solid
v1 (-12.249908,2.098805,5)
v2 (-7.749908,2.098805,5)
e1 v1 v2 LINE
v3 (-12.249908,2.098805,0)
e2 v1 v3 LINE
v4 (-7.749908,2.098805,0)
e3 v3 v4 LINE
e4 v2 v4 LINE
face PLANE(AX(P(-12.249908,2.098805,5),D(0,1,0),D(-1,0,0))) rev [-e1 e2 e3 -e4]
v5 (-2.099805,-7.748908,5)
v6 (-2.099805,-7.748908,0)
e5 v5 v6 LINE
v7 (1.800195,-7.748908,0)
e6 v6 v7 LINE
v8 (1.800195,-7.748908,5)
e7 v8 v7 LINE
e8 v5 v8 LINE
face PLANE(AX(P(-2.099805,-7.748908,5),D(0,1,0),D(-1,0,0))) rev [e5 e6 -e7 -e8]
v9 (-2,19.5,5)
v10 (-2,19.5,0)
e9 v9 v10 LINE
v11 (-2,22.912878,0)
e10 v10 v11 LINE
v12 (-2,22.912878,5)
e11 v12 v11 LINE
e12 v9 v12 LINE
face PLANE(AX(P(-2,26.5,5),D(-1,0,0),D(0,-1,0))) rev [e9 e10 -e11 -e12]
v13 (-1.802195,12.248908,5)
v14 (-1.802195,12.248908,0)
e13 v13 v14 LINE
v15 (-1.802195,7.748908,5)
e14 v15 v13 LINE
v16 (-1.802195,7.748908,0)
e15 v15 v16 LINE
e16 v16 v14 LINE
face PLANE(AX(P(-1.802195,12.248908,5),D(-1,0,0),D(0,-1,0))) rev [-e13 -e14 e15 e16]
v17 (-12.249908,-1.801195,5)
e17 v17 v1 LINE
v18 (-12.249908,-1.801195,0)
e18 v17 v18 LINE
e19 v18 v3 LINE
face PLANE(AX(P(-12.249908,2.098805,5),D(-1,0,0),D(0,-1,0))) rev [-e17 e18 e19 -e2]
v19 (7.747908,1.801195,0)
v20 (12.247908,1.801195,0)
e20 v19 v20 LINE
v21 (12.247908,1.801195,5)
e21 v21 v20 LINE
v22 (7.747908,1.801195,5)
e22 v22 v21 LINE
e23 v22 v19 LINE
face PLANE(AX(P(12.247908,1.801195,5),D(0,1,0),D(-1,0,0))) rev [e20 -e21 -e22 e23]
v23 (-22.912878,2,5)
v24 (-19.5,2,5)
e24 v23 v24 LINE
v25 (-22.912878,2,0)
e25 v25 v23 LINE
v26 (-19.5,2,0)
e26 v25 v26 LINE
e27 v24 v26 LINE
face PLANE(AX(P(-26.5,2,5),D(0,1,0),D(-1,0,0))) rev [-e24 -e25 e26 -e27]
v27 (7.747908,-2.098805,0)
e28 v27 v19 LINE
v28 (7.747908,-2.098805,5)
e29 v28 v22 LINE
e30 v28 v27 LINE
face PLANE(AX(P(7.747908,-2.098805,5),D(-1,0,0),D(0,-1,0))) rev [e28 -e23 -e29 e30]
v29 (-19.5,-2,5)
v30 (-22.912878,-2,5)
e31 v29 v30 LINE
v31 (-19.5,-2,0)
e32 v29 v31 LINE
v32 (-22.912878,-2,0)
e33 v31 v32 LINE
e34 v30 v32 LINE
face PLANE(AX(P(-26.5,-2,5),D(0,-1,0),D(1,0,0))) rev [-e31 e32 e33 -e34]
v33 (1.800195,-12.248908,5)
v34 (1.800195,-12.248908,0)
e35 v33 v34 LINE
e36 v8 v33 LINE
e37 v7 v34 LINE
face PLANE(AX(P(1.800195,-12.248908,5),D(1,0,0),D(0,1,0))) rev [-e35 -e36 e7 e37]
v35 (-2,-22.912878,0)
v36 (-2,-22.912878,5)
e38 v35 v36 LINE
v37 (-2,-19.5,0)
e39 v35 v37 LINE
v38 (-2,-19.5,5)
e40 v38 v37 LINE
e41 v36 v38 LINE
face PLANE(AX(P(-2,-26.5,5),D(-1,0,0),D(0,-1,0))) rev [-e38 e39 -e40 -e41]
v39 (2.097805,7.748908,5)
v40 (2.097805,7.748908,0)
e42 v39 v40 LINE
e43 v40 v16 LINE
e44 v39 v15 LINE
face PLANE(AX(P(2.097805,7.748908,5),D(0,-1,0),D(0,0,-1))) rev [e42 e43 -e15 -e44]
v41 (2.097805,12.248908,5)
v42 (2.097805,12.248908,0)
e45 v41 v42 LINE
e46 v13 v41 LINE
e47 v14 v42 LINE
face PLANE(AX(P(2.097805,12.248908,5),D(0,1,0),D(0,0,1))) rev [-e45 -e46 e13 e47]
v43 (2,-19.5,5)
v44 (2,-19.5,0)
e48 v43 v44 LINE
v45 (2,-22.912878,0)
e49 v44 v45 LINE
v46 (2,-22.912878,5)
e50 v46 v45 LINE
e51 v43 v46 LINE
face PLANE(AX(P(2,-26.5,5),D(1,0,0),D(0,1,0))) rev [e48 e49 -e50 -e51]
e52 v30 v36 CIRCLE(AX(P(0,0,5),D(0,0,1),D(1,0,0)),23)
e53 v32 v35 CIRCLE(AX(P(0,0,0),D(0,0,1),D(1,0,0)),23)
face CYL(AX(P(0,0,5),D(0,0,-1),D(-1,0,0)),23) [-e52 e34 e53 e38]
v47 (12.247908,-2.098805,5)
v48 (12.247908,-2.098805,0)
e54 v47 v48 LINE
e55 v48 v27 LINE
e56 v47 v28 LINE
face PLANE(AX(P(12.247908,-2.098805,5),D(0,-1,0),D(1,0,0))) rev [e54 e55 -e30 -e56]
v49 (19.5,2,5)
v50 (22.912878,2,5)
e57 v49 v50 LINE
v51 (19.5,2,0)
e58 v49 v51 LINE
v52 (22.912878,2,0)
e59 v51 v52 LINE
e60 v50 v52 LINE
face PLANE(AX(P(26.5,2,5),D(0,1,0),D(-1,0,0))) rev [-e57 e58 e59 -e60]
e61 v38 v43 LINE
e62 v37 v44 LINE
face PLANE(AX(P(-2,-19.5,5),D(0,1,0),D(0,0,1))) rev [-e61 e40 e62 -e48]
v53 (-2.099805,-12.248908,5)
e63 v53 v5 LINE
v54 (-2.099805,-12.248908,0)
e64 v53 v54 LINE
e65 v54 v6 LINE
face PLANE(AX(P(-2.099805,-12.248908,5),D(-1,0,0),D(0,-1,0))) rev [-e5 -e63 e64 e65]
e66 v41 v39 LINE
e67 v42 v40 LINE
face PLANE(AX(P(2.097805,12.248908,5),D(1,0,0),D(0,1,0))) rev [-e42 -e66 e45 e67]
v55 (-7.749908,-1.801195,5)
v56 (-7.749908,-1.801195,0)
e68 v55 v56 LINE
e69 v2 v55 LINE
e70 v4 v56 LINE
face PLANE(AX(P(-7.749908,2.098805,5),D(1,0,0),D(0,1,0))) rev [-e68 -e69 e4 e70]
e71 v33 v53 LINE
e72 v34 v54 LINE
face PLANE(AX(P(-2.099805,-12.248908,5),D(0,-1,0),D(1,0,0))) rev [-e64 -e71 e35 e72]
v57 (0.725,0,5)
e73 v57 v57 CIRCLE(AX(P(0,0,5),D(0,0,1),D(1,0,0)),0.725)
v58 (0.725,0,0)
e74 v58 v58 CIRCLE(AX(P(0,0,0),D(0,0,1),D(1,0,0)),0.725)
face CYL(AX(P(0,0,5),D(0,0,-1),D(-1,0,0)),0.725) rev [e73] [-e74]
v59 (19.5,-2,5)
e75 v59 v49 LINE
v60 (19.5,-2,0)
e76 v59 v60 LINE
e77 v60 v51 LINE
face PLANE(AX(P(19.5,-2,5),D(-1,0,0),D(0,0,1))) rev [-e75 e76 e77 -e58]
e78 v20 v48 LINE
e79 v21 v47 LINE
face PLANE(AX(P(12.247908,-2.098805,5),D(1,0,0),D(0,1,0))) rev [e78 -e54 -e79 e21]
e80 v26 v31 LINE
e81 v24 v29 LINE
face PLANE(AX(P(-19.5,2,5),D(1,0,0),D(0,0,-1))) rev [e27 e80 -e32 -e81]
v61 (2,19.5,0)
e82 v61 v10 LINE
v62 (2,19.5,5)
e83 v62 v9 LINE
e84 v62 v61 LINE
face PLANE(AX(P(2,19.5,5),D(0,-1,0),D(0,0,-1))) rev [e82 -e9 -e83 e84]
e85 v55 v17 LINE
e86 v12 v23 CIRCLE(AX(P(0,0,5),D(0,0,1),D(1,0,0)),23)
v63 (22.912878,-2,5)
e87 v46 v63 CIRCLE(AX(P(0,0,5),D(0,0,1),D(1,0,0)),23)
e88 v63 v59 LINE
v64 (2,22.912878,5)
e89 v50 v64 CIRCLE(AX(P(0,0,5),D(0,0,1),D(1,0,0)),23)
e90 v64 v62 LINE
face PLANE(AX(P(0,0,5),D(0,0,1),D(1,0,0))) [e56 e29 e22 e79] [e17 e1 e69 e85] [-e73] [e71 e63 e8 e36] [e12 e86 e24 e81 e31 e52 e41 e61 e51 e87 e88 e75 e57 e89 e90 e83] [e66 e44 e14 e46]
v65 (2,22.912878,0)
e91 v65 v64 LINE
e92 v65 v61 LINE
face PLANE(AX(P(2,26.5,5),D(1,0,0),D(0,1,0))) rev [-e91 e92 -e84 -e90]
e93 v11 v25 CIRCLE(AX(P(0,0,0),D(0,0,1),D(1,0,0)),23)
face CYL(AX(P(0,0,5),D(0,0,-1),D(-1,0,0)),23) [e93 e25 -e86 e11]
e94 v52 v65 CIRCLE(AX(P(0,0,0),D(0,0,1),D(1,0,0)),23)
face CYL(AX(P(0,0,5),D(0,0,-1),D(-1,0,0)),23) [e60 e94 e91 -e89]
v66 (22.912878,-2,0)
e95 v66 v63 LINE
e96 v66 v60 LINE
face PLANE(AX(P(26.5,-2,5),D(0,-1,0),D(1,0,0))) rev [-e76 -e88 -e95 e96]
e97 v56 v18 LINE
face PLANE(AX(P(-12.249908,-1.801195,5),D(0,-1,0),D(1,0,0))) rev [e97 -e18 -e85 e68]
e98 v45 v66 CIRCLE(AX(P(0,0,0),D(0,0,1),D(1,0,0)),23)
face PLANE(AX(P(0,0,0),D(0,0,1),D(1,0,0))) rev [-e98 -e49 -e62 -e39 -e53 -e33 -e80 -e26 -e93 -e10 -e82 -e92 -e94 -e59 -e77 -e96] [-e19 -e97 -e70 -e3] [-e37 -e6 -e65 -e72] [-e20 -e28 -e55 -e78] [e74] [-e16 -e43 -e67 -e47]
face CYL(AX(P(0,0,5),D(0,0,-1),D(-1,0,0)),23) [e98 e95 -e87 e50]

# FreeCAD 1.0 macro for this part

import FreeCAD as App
import Part
import Sketcher


def add_polygon(sketch, points):
    """Adds a closed chain of lines whose ends are joined by coincident constraints."""
    first, n = sketch.GeometryCount, len(points)
    for a, b in zip(points, points[1:] + points[:1]):
        sketch.addGeometry(Part.LineSegment(App.Vector(*a, 0), App.Vector(*b, 0)), False)
    for i in range(n):
        sketch.addConstraint(Sketcher.Constraint("Coincident", first + i, 2, first + (i + 1) % n, 1))

doc = App.newDocument("Part")
body = doc.addObject("PartDesign::Body", "Body")

# Sketch on XY plane
sketch1 = body.newObject("Sketcher::SketchObject", "Sketch")
sketch1.AttachmentSupport = (doc.getObject("XY_Plane"), [""])
sketch1.MapMode = "FlatFace"
sketch1.addGeometry(Part.Circle(App.Vector(0, 0, 0), App.Vector(0, 0, 1), 23), False)
sketch1.addGeometry(Part.Circle(App.Vector(0, 0, 0), App.Vector(0, 0, 1), 0.7), False)
sketch1.addConstraint(Sketcher.Constraint("Coincident", 0, 3, -1, 1))
sketch1.addConstraint(Sketcher.Constraint("Coincident", 1, 3, -1, 1))
sketch1.addConstraint(Sketcher.Constraint("Diameter", 0, 46.0))
sketch1.addConstraint(Sketcher.Constraint("Diameter", 1, 1.45))
pad1 = body.newObject("PartDesign::Pad", "Pad")
pad1.Profile = sketch1
pad1.Length = 5

# Sketch on XY plane
sketch2 = body.newObject("Sketcher::SketchObject", "Sketch001")
sketch2.AttachmentSupport = (doc.getObject("XY_Plane"), [""])
sketch2.MapMode = "FlatFace"
add_polygon(sketch2, [(-7.7, 2.1), (-7.7, -1.8), (-12.2, -1.8), (-12.2, 2.1)])  # lines 0-3
add_polygon(sketch2, [(2.1, 12.2), (2.1, 7.7), (-1.8, 7.7), (-1.8, 12.2)])  # lines 4-7
add_polygon(sketch2, [(1.8, -7.7), (1.8, -12.2), (-2.1, -12.2), (-2.1, -7.7)])  # lines 8-11
add_polygon(sketch2, [(12.2, 1.8), (12.2, -2.1), (7.7, -2.1), (7.7, 1.8)])  # lines 12-15
sketch2.addConstraint(Sketcher.Constraint("Vertical", 0))
sketch2.addConstraint(Sketcher.Constraint("Horizontal", 1))
sketch2.addConstraint(Sketcher.Constraint("Vertical", 2))
sketch2.addConstraint(Sketcher.Constraint("Horizontal", 3))
sketch2.addConstraint(Sketcher.Constraint("Vertical", 4))
sketch2.addConstraint(Sketcher.Constraint("Horizontal", 5))
sketch2.addConstraint(Sketcher.Constraint("Vertical", 6))
sketch2.addConstraint(Sketcher.Constraint("Horizontal", 7))
sketch2.addConstraint(Sketcher.Constraint("Vertical", 8))
sketch2.addConstraint(Sketcher.Constraint("Horizontal", 9))
sketch2.addConstraint(Sketcher.Constraint("Vertical", 10))
sketch2.addConstraint(Sketcher.Constraint("Horizontal", 11))
sketch2.addConstraint(Sketcher.Constraint("Vertical", 12))
sketch2.addConstraint(Sketcher.Constraint("Horizontal", 13))
sketch2.addConstraint(Sketcher.Constraint("Vertical", 14))
sketch2.addConstraint(Sketcher.Constraint("Horizontal", 15))
sketch2.addConstraint(Sketcher.Constraint("Equal", 7, 9))
sketch2.addConstraint(Sketcher.Constraint("Equal", 3, 13))
sketch2.addConstraint(Sketcher.Constraint("Equal", 11, 0))
sketch2.addConstraint(Sketcher.Constraint("Equal", 15, 4))
sketch2.addConstraint(Sketcher.Constraint("Equal", 6, 8))
sketch2.addConstraint(Sketcher.Constraint("Equal", 2, 12))
sketch2.addConstraint(Sketcher.Constraint("DistanceX", 1, 2, 1, 1, 4.5))
sketch2.addConstraint(Sketcher.Constraint("DistanceX", 5, 2, 5, 1, 3.9))
sketch2.addConstraint(Sketcher.Constraint("DistanceX", 8, 2, 4, 2, 0.297609))
sketch2.addConstraint(Sketcher.Constraint("DistanceX", 0, 2, -1, 1, 7.749908))
sketch2.addConstraint(Sketcher.Constraint("DistanceY", 0, 2, -1, 1, 1.801195))
sketch2.addConstraint(Sketcher.Constraint("DistanceX", -1, 1, 4, 2, 2.097805))
sketch2.addConstraint(Sketcher.Constraint("DistanceY", -1, 1, 4, 2, 7.748908))
sketch2.addConstraint(Sketcher.Constraint("DistanceY", 8, 2, -1, 1, 12.248908))
sketch2.addConstraint(Sketcher.Constraint("DistanceX", -1, 1, 12, 2, 12.247908))
sketch2.addConstraint(Sketcher.Constraint("DistanceY", 12, 2, -1, 1, 2.098805))
pocket1 = body.newObject("PartDesign::Pocket", "Pocket")
pocket1.Profile = sketch2
pocket1.Type = "ThroughAll"
pocket1.Reversed = True

# Sketch on XY plane
sketch3 = body.newObject("Sketcher::SketchObject", "Sketch002")
sketch3.AttachmentSupport = (doc.getObject("XY_Plane"), [""])
sketch3.MapMode = "FlatFace"
add_polygon(sketch3, [(-19.5, 2), (-19.5, -2), (-26.5, -2), (-26.5, 2)])  # lines 0-3
add_polygon(sketch3, [(2, 26.5), (2, 19.5), (-2, 19.5), (-2, 26.5)])  # lines 4-7
add_polygon(sketch3, [(2, -19.5), (2, -26.5), (-2, -26.5), (-2, -19.5)])  # lines 8-11
add_polygon(sketch3, [(26.5, 2), (26.5, -2), (19.5, -2), (19.5, 2)])  # lines 12-15
sketch3.addConstraint(Sketcher.Constraint("Vertical", 0))
sketch3.addConstraint(Sketcher.Constraint("Horizontal", 1))
sketch3.addConstraint(Sketcher.Constraint("Vertical", 2))
sketch3.addConstraint(Sketcher.Constraint("Horizontal", 3))
sketch3.addConstraint(Sketcher.Constraint("Vertical", 4))
sketch3.addConstraint(Sketcher.Constraint("Horizontal", 5))
sketch3.addConstraint(Sketcher.Constraint("Vertical", 6))
sketch3.addConstraint(Sketcher.Constraint("Horizontal", 7))
sketch3.addConstraint(Sketcher.Constraint("Vertical", 8))
sketch3.addConstraint(Sketcher.Constraint("Horizontal", 9))
sketch3.addConstraint(Sketcher.Constraint("Vertical", 10))
sketch3.addConstraint(Sketcher.Constraint("Horizontal", 11))
sketch3.addConstraint(Sketcher.Constraint("Vertical", 12))
sketch3.addConstraint(Sketcher.Constraint("Horizontal", 13))
sketch3.addConstraint(Sketcher.Constraint("Vertical", 14))
sketch3.addConstraint(Sketcher.Constraint("Horizontal", 15))
sketch3.addConstraint(Sketcher.Constraint("Symmetric", 6, 2, 8, 2, -1, 1))
sketch3.addConstraint(Sketcher.Constraint("Symmetric", 4, 2, 10, 2, -1, 1))
sketch3.addConstraint(Sketcher.Constraint("Symmetric", 2, 2, 12, 2, -1, 1))
sketch3.addConstraint(Sketcher.Constraint("Symmetric", 0, 2, 14, 2, -1, 1))
sketch3.addConstraint(Sketcher.Constraint("Horizontal", 1, 2, 12, 2))
sketch3.addConstraint(Sketcher.Constraint("Vertical", 7, 2, 8, 2))
sketch3.addConstraint(Sketcher.Constraint("Equal", 11, 0))
sketch3.addConstraint(Sketcher.Constraint("Equal", 15, 4))
sketch3.addConstraint(Sketcher.Constraint("DistanceX", 1, 2, 1, 1, 7.0))
sketch3.addConstraint(Sketcher.Constraint("DistanceX", 5, 2, 5, 1, 4.0))
sketch3.addConstraint(Sketcher.Constraint("DistanceY", 8, 2, 4, 2, 46.0))
sketch3.addConstraint(Sketcher.Constraint("DistanceX", 0, 2, -1, 1, 19.5))
pocket2 = body.newObject("PartDesign::Pocket", "Pocket001")
pocket2.Profile = sketch3
pocket2.Type = "ThroughAll"
pocket2.Reversed = True

doc.recompute()
